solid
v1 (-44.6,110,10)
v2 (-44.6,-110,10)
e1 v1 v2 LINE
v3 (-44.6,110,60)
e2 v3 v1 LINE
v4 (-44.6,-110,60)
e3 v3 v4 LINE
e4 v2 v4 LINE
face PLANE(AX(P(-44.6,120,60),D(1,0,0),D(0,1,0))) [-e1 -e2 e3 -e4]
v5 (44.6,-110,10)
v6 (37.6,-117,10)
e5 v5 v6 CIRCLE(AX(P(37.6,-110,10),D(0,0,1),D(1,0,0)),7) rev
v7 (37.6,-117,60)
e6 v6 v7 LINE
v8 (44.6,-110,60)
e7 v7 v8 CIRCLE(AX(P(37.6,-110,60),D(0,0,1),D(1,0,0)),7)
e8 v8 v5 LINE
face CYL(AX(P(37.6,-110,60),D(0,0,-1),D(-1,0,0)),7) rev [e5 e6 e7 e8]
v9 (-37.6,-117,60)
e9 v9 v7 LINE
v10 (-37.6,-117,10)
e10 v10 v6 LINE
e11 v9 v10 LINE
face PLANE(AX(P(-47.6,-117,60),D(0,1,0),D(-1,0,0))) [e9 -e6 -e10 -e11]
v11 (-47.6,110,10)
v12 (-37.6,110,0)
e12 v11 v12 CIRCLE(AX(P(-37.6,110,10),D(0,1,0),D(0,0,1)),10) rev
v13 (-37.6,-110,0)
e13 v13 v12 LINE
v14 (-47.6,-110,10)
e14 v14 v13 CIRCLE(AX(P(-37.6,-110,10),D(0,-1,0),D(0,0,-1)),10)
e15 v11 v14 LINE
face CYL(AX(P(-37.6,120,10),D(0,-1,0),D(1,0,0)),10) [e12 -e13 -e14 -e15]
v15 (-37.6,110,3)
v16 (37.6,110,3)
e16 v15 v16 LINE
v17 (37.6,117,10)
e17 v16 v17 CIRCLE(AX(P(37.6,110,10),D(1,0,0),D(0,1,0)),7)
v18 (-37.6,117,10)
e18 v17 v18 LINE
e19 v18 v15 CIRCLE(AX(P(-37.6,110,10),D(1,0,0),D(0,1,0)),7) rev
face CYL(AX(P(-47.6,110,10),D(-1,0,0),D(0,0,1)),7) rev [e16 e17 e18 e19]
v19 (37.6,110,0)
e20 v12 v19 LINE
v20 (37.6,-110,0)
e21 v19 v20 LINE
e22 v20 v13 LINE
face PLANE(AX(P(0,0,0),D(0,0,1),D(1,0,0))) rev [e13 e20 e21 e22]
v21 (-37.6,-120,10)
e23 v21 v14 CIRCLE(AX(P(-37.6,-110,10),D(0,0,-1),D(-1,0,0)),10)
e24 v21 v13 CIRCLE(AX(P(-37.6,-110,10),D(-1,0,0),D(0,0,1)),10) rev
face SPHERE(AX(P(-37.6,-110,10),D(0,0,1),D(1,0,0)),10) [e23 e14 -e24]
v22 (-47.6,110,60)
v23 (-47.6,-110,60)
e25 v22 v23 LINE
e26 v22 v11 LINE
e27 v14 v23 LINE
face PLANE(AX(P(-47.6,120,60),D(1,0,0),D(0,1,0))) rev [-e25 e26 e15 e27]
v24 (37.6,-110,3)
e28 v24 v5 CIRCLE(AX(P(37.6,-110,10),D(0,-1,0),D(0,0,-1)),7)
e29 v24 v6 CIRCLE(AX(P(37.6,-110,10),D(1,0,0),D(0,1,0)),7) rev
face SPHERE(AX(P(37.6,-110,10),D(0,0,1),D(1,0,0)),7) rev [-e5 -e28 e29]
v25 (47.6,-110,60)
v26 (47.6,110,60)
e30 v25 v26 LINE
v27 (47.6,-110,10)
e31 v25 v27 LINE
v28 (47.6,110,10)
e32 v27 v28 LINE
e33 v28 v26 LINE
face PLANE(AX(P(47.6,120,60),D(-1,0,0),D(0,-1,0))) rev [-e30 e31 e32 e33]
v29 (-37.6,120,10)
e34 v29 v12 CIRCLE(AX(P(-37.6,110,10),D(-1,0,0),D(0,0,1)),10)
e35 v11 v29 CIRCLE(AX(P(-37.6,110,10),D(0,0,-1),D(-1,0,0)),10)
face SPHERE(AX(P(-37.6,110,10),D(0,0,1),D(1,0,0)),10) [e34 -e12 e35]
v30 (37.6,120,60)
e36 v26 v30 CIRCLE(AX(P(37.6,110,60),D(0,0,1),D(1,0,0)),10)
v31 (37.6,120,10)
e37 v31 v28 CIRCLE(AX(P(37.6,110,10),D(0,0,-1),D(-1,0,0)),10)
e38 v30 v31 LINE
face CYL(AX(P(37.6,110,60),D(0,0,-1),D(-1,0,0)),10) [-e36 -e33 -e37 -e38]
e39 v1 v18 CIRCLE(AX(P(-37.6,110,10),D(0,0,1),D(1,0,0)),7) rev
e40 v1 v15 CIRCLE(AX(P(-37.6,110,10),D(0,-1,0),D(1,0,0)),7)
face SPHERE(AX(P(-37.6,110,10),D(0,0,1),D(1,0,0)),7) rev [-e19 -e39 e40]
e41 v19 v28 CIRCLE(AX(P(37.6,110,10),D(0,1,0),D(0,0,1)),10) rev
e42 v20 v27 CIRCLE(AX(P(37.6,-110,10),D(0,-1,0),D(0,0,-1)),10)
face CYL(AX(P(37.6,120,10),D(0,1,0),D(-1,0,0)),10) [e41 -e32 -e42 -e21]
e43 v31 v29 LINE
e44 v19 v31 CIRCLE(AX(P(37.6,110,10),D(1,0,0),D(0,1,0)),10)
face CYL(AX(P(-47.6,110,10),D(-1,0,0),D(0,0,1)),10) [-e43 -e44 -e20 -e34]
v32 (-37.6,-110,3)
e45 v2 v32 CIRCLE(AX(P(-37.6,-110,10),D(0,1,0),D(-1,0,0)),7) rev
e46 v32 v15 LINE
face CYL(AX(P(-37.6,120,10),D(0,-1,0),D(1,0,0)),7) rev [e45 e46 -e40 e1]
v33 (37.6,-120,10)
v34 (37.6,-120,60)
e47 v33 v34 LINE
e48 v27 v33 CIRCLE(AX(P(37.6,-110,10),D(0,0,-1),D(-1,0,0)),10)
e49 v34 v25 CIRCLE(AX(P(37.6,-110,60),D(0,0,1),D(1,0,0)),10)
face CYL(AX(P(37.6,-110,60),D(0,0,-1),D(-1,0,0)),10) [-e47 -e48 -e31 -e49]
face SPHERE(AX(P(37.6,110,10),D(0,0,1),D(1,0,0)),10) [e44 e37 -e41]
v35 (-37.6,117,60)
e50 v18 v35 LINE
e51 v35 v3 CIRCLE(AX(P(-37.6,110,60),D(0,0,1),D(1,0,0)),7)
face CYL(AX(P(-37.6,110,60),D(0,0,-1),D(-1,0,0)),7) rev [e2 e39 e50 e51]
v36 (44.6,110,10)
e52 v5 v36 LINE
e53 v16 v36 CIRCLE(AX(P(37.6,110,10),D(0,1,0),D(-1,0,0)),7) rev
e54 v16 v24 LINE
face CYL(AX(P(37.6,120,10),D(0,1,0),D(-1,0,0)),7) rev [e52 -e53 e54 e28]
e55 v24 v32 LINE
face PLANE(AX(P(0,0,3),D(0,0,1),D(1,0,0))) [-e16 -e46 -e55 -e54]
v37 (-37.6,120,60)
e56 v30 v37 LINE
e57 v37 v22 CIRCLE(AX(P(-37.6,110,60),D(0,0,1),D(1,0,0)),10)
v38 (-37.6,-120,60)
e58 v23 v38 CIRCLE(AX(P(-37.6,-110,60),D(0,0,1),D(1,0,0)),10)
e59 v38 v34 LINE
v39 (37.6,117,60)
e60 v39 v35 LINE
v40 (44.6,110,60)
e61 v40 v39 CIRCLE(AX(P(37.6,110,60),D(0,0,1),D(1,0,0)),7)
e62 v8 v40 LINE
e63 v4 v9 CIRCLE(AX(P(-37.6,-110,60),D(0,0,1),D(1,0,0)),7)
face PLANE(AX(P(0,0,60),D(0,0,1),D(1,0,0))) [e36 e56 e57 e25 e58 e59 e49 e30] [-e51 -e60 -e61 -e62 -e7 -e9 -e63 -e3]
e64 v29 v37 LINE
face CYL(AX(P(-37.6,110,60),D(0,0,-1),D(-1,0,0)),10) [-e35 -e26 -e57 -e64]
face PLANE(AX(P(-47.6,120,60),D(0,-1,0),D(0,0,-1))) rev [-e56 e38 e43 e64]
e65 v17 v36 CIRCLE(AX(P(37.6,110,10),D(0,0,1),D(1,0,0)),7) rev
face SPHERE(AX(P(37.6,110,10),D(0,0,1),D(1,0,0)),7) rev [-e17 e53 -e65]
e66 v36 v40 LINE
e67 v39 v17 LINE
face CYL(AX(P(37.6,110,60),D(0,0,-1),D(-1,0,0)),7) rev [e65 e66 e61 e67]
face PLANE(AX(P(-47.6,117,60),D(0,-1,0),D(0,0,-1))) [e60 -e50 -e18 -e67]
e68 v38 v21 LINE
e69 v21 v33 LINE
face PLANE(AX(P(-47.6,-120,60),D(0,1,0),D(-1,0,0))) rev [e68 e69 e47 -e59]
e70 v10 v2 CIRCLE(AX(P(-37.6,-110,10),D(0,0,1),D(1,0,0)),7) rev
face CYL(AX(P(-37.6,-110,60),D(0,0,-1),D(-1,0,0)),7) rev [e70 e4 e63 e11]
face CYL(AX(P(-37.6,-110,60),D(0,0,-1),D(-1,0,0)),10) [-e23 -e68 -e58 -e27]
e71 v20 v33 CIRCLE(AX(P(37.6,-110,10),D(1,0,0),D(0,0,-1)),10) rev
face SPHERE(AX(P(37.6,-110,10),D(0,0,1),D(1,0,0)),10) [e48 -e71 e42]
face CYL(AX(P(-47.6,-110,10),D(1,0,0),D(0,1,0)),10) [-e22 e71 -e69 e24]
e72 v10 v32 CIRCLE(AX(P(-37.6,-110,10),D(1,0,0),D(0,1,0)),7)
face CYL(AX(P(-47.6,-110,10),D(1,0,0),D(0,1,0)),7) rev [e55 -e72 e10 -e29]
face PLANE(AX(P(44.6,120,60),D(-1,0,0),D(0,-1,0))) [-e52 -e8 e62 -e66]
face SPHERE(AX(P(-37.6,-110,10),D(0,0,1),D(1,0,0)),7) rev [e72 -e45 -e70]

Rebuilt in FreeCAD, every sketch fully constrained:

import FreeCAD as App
import Part
import Sketcher
Q = App.Units.Quantity


def edges_at(feature, points):
    """Names of the edges that pass closest to the given points."""
    edges = feature.Shape.Edges
    near = lambda p: min(range(len(edges)), key=lambda i: edges[i].distToShape(Part.Vertex(*p))[0])
    return sorted({f"Edge{near(p) + 1}" for p in points})


def faces_at(feature, points):
    """Names of the faces that lie closest to the given points."""
    faces = feature.Shape.Faces
    near = lambda p: min(range(len(faces)), key=lambda i: faces[i].distToShape(Part.Vertex(*p))[0])
    return sorted({f"Face{near(p) + 1}" for p in points})

doc = App.newDocument("Part")
body = doc.addObject("PartDesign::Body", "Body")

# Sketch on XY plane
sketch1 = body.newObject("Sketcher::SketchObject", "Sketch")
sketch1.AttachmentSupport = (doc.getObject("XY_Plane"), [""])
sketch1.MapMode = "FlatFace"
sketch1.addGeometry([
    Part.LineSegment(App.Vector(-48, 120, 0), App.Vector(-48, -120, 0)),
    Part.LineSegment(App.Vector(-48, -120, 0), App.Vector(48, -120, 0)),
    Part.LineSegment(App.Vector(48, -120, 0), App.Vector(48, 120, 0)),
    Part.LineSegment(App.Vector(48, 120, 0), App.Vector(-48, 120, 0)),
], False)
sketch1.addConstraint([
    Sketcher.Constraint("Coincident", 0, 2, 1, 1),
    Sketcher.Constraint("Coincident", 1, 2, 2, 1),
    Sketcher.Constraint("Coincident", 2, 2, 3, 1),
    Sketcher.Constraint("Coincident", 3, 2, 0, 1),
    Sketcher.Constraint("Vertical", 0),
    Sketcher.Constraint("Horizontal", 1),
    Sketcher.Constraint("Vertical", 2),
    Sketcher.Constraint("Horizontal", 3),
    Sketcher.Constraint("Symmetric", 0, 2, 2, 2, -1, 1),
    Sketcher.Constraint("DistanceY", 0, 2, 0, 1, Q("240 mm")),
    Sketcher.Constraint("DistanceX", 1, 1, 1, 2, Q("95.2 mm")),
])
pad1 = body.newObject("PartDesign::Pad", "Pad")
pad1.Profile = sketch1
pad1.Length = 60
doc.recompute()

fillet = body.newObject("PartDesign::Fillet", "Fillet")
fillet.Base = (pad1, edges_at(pad1, [
    (0, 120, 0),
    (47.6, 0, 0),
    (0, -120, 0),
    (-47.6, 0, 0),
    (-47.6, 120, 30),
    (47.6, 120, 30),
    (47.6, -120, 30),
    (-47.6, -120, 30),
]))
fillet.Radius = 10
doc.recompute()

thickness = body.newObject("PartDesign::Thickness", "Thickness")
thickness.Base = (fillet, faces_at(fillet, [(0, 0, 60)]))
thickness.Value = 3
thickness.Reversed = True
thickness.Join = "Intersection"

doc.recompute()
